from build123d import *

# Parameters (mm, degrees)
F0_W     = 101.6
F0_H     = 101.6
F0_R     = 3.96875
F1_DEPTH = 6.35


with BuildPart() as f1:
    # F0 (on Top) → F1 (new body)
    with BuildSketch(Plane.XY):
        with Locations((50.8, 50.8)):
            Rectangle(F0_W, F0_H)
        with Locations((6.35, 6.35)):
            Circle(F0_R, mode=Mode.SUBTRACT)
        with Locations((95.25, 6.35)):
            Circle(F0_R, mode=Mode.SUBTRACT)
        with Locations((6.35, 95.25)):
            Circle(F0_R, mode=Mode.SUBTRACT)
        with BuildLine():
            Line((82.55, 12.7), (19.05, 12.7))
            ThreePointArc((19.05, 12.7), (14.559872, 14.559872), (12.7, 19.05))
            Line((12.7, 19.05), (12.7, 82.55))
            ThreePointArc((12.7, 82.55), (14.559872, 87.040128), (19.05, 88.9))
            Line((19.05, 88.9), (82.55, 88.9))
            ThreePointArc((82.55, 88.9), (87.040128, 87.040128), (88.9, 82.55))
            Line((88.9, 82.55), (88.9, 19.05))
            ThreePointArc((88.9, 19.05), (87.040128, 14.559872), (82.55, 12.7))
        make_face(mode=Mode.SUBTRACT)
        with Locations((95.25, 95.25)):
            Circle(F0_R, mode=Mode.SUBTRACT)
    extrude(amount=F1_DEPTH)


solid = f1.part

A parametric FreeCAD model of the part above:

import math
import FreeCAD as App
import Part
import Sketcher

V = App.Vector
Q = App.Units.Quantity


def add_polygon(sketch, points):
    """Adds a closed chain of lines whose ends are joined by coincident constraints."""
    first, n = sketch.GeometryCount, len(points)
    for a, b in zip(points, points[1:] + points[:1]):
        sketch.addGeometry(Part.LineSegment(App.Vector(*a, 0), App.Vector(*b, 0)), False)
    for i in range(n):
        sketch.addConstraint(Sketcher.Constraint("Coincident", first + i, 2, first + (i + 1) % n, 1))

doc = App.newDocument("Part")
body = doc.addObject("PartDesign::Body", "Body")

# Sketch on XY plane
sketch1 = body.newObject("Sketcher::SketchObject", "Sketch")
sketch1.AttachmentSupport = (doc.getObject("XY_Plane"), [""])
sketch1.MapMode = "FlatFace"
add_polygon(sketch1, [(0, 101.6), (0, 0), (101.6, 0), (101.6, 101.6)])  # lines 0-3
sketch1.addGeometry(Part.Circle(V(6.35, 6.35, 0), V(0, 0, 1), 3.96875), False)  # 4
sketch1.addGeometry(Part.Circle(V(95.25, 6.35, 0), V(0, 0, 1), 3.96875), False)  # 5
sketch1.addGeometry(Part.Circle(V(6.35, 95.25, 0), V(0, 0, 1), 3.96875), False)  # 6
sketch1.addGeometry(Part.ArcOfCircle(Part.Circle(V(82.55, 19.05, 0), V(0, 0, 1), 6.35), math.radians(-89.999998), math.radians(-0.000002)), False)  # 7
sketch1.addGeometry(Part.LineSegment(V(82.55, 12.7, 0), V(19.05, 12.7, 0)), False)  # 8
sketch1.addGeometry(Part.ArcOfCircle(Part.Circle(V(19.05, 19.05, 0), V(0, 0, 1), 6.35), math.radians(-179.999998), math.radians(-90.000002)), False)  # 9
sketch1.addGeometry(Part.LineSegment(V(12.7, 19.05, 0), V(12.7, 82.55, 0)), False)  # 10
sketch1.addGeometry(Part.ArcOfCircle(Part.Circle(V(19.05, 82.55, 0), V(0, 0, 1), 6.35), math.radians(90.000002), math.radians(179.999998)), False)  # 11
sketch1.addGeometry(Part.LineSegment(V(19.05, 88.9, 0), V(82.55, 88.9, 0)), False)  # 12
sketch1.addGeometry(Part.ArcOfCircle(Part.Circle(V(82.55, 82.55, 0), V(0, 0, 1), 6.35), math.radians(0.000002), math.radians(89.999998)), False)  # 13
sketch1.addGeometry(Part.LineSegment(V(88.9, 82.55, 0), V(88.9, 19.05, 0)), False)  # 14
sketch1.addGeometry(Part.Circle(V(95.25, 95.25, 0), V(0, 0, 1), 3.96875), False)  # 15
sketch1.addConstraint([
    Sketcher.Constraint("Tangent", 7, 1, 8, 1),
    Sketcher.Constraint("Tangent", 8, 2, 9, 2),
    Sketcher.Constraint("Tangent", 9, 1, 10, 1),
    Sketcher.Constraint("Tangent", 10, 2, 11, 2),
    Sketcher.Constraint("Tangent", 11, 1, 12, 1),
    Sketcher.Constraint("Tangent", 12, 2, 13, 2),
    Sketcher.Constraint("Tangent", 13, 1, 14, 1),
    Sketcher.Constraint("Tangent", 14, 2, 7, 2),
    Sketcher.Constraint("Vertical", 0),
    Sketcher.Constraint("Horizontal", 1),
    Sketcher.Constraint("Vertical", 2),
    Sketcher.Constraint("Horizontal", 3),
    Sketcher.Constraint("Horizontal", 8),
    Sketcher.Constraint("Vertical", 10),
    Sketcher.Constraint("Horizontal", 12),
    Sketcher.Constraint("Vertical", 14),
    Sketcher.Constraint("Coincident", 0, 2, -1, 1),
    Sketcher.Constraint("Equal", 4, 5),
    Sketcher.Constraint("Equal", 5, 6),
    Sketcher.Constraint("Equal", 7, 9),
    Sketcher.Constraint("Equal", 9, 11),
    Sketcher.Constraint("Equal", 11, 13),
    Sketcher.Constraint("Equal", 6, 15),
    Sketcher.Constraint("Horizontal", 4, 3, 5, 3),
    Sketcher.Constraint("Horizontal", 6, 3, 15, 3),
    Sketcher.Constraint("Vertical", 4, 3, 6, 3),
    Sketcher.Constraint("Vertical", 5, 3, 15, 3),
    Sketcher.Constraint("Equal", 3, 0),
    Sketcher.Constraint("Equal", 12, 10),
    Sketcher.Constraint("DistanceX", 1, 1, 1, 2, Q("4 in")),
    Sketcher.Constraint("Radius", 7, Q("0.25 in")),
    Sketcher.Constraint("Diameter", 4, Q("0.3125 in")),
    Sketcher.Constraint("DistanceX", 8, 2, 8, 1, Q("2.5 in")),
    Sketcher.Constraint("DistanceX", 4, 3, 7, 3, Q("3 in")),
    Sketcher.Constraint("DistanceY", 7, 3, 6, 3, Q("3 in")),
    Sketcher.Constraint("DistanceX", 9, 3, 5, 3, Q("3 in")),
    Sketcher.Constraint("DistanceY", 4, 3, 11, 3, Q("3 in")),
    Sketcher.Constraint("DistanceY", -1, 1, 7, 1, Q("0.5 in")),
    Sketcher.Constraint("DistanceX", -1, 1, 9, 1, Q("0.5 in")),
])
pad1 = body.newObject("PartDesign::Pad", "Pad")
pad1.Profile = sketch1
pad1.Length = Q("0.25 in")

doc.recompute()
